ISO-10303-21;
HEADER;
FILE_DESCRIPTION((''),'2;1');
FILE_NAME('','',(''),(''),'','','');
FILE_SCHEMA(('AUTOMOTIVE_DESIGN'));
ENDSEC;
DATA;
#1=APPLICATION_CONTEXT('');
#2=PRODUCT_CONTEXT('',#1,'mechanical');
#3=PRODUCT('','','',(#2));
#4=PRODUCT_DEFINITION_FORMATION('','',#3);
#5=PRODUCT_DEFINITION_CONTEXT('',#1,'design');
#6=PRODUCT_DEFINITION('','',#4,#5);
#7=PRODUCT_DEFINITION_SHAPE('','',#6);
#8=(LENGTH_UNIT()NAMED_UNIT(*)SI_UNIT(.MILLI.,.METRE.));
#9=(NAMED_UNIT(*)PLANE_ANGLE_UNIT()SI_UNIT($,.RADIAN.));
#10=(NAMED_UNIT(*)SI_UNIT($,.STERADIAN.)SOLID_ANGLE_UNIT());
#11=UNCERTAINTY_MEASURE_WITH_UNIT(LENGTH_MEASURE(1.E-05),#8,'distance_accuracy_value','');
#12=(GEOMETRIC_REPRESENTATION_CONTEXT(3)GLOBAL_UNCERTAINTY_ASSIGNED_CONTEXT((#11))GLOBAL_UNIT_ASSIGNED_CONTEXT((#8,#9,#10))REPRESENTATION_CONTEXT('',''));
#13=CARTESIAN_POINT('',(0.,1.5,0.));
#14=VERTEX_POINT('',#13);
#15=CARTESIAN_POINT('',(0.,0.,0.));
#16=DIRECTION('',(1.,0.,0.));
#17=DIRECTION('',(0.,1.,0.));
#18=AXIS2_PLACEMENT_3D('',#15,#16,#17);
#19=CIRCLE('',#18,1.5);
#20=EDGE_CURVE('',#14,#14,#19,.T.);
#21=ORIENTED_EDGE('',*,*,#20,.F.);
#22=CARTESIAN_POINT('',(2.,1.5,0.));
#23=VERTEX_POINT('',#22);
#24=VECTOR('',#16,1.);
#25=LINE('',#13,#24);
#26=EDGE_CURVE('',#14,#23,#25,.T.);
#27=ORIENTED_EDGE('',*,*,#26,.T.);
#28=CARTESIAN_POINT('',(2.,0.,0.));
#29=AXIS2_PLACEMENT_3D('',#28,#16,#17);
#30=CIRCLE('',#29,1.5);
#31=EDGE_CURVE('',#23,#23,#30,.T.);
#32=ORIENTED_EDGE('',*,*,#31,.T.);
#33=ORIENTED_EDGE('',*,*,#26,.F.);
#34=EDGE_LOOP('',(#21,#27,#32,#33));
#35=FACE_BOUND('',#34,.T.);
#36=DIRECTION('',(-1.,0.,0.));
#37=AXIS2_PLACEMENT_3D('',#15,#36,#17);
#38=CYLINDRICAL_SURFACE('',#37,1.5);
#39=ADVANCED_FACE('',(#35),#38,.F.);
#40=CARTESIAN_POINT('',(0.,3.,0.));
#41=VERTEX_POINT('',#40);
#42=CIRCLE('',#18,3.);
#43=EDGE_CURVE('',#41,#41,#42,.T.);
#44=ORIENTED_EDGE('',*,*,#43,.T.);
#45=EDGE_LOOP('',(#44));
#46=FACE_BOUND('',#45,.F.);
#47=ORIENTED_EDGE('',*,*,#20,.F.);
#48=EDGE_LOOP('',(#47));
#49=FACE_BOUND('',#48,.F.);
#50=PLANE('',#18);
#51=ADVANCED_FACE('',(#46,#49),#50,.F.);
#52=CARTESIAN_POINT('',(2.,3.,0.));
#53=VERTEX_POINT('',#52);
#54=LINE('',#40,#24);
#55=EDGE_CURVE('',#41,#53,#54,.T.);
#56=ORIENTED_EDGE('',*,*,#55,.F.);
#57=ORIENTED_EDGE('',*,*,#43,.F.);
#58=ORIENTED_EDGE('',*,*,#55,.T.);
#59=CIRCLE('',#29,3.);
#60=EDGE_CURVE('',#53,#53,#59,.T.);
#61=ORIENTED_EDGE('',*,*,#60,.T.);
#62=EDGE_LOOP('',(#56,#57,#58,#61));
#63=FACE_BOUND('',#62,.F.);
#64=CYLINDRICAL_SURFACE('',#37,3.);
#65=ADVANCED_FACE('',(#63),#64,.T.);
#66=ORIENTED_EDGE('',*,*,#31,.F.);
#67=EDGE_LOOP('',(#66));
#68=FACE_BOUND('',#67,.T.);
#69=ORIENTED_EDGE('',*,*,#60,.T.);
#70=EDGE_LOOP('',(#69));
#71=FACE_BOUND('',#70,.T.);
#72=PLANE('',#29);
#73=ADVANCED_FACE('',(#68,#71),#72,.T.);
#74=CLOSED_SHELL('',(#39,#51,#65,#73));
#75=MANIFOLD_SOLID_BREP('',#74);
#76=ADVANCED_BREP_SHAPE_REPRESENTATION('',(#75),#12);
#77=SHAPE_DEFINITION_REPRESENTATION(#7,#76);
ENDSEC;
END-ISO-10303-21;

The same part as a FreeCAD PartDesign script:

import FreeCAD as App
import Part
import Sketcher
from FreeCAD import Vector
Q = App.Units.Quantity

doc = App.newDocument("Part")
body = doc.addObject("PartDesign::Body", "Body")

# Sketch on YZ plane
sketch1 = body.newObject("Sketcher::SketchObject", "Sketch")
sketch1.AttachmentSupport = (doc.getObject("YZ_Plane"), [""])
sketch1.MapMode = "FlatFace"
sketch1.addGeometry([
    Part.Circle(Vector(0, 0, 0), Vector(0, 0, 1), 3),
    Part.Circle(Vector(0, 0, 0), Vector(0, 0, 1), 1.5),
], False)
sketch1.addConstraint([
    Sketcher.Constraint("Coincident", 0, 3, -1, 1),
    Sketcher.Constraint("Coincident", 1, 3, -1, 1),
    Sketcher.Constraint("Diameter", 0, Q("6 mm")),
    Sketcher.Constraint("Diameter", 1, Q("3 mm")),
])
pad1 = body.newObject("PartDesign::Pad", "Pad")
pad1.Profile = sketch1
pad1.Length = 2

doc.recompute()
